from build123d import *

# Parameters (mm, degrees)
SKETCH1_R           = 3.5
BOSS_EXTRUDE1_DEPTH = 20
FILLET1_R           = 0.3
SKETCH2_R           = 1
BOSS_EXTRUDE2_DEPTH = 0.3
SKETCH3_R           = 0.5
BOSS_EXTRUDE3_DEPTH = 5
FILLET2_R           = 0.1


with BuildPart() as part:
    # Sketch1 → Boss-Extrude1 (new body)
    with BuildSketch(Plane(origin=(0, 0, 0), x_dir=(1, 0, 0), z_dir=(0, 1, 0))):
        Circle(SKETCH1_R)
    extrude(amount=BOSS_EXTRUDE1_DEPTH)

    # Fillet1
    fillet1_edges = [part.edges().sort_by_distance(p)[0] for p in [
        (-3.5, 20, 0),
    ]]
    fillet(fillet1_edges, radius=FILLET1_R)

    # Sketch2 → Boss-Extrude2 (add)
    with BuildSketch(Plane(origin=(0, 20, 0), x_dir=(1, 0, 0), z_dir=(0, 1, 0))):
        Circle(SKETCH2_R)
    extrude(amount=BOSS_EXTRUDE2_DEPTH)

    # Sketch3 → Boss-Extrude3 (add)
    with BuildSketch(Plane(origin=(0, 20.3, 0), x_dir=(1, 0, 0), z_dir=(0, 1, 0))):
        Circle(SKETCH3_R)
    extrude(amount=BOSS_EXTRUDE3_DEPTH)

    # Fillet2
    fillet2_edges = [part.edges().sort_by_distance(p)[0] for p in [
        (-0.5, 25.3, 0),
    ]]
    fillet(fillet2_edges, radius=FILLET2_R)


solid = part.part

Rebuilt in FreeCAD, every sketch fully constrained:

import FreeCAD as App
import Part
import Sketcher


def edges_at(feature, points):
    """Names of the edges that pass closest to the given points."""
    edges = feature.Shape.Edges
    near = lambda p: min(range(len(edges)), key=lambda i: edges[i].distToShape(Part.Vertex(*p))[0])
    return sorted({f"Edge{near(p) + 1}" for p in points})

doc = App.newDocument("Part")
body = doc.addObject("PartDesign::Body", "Body")

# Sketch on XZ plane
sketch1 = doc.addObject("Sketcher::SketchObject", "Sketch")
body.addObject(sketch1)
sketch1.AttachmentSupport = (doc.XZ_Plane, [""])
sketch1.MapMode = "FlatFace"
sketch1.addGeometry(Part.Circle(App.Vector(0, 0, 0), App.Vector(0, 0, 1), 3.5), False)
sketch1.addConstraint(Sketcher.Constraint("Coincident", 0, 3, -1, 1))
sketch1.addConstraint(Sketcher.Constraint("Diameter", 0, 7.0))
pad1 = doc.addObject("PartDesign::Pad", "Pad")
body.addObject(pad1)
pad1.Profile = sketch1
pad1.Length = 20
pad1.Reversed = True
doc.recompute()

fillet = doc.addObject("PartDesign::Fillet", "Fillet")
body.addObject(fillet)
fillet.Base = (pad1, edges_at(pad1, [(-3.5, 20, 0)]))
fillet.Radius = 0.3

# Sketch on XZ plane
sketch2 = doc.addObject("Sketcher::SketchObject", "Sketch001")
body.addObject(sketch2)
sketch2.AttachmentSupport = (doc.XZ_Plane, [""])
sketch2.MapMode = "FlatFace"
sketch2.AttachmentOffset = App.Placement(App.Vector(0, 0, -20), App.Rotation())
sketch2.addGeometry(Part.Circle(App.Vector(0, 0, 0), App.Vector(0, 0, 1), 1), False)
sketch2.addConstraint(Sketcher.Constraint("Coincident", 0, 3, -1, 1))
sketch2.addConstraint(Sketcher.Constraint("Diameter", 0, 2.0))
pad2 = doc.addObject("PartDesign::Pad", "Pad001")
body.addObject(pad2)
pad2.Profile = sketch2
pad2.Length = 0.3
pad2.Reversed = True

# Sketch on XZ plane
sketch3 = doc.addObject("Sketcher::SketchObject", "Sketch002")
body.addObject(sketch3)
sketch3.AttachmentSupport = (doc.XZ_Plane, [""])
sketch3.MapMode = "FlatFace"
sketch3.AttachmentOffset = App.Placement(App.Vector(0, 0, -20.3), App.Rotation())
sketch3.addGeometry(Part.Circle(App.Vector(0, 0, 0), App.Vector(0, 0, 1), 0.5), False)
sketch3.addConstraint(Sketcher.Constraint("Coincident", 0, 3, -1, 1))
sketch3.addConstraint(Sketcher.Constraint("Diameter", 0, 1.0))
pad3 = doc.addObject("PartDesign::Pad", "Pad002")
body.addObject(pad3)
pad3.Profile = sketch3
pad3.Length = 5
pad3.Reversed = True
doc.recompute()

fillet2 = doc.addObject("PartDesign::Fillet", "Fillet001")
body.addObject(fillet2)
fillet2.Base = (pad3, edges_at(pad3, [(-0.5, 25.3, 0)]))
fillet2.Radius = 0.1

doc.recompute()
